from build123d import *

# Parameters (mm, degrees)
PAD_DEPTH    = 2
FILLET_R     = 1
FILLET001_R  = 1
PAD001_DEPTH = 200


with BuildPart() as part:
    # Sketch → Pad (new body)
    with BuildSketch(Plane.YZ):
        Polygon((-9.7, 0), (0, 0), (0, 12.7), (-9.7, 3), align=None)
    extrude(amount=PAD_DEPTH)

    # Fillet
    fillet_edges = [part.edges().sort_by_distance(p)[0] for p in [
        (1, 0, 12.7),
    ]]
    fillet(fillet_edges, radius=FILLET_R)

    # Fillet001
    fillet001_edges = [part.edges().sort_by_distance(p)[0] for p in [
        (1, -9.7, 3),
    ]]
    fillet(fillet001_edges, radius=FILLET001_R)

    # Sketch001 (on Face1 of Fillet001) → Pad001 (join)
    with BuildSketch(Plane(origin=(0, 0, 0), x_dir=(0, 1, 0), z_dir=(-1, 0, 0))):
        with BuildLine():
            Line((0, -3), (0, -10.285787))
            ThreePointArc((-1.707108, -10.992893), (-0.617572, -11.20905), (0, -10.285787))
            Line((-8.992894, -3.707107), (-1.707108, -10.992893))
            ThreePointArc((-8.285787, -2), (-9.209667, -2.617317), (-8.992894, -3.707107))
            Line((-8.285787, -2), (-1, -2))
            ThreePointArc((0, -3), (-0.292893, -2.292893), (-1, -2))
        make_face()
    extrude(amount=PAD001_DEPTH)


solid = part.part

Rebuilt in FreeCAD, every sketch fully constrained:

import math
import FreeCAD as App
import Part
import Sketcher
Q = App.Units.Quantity


def edges_at(feature, points):
    """Names of the edges that pass closest to the given points."""
    edges = feature.Shape.Edges
    near = lambda p: min(range(len(edges)), key=lambda i: edges[i].distToShape(Part.Vertex(*p))[0])
    return sorted({f"Edge{near(p) + 1}" for p in points})


def add_polygon(sketch, points):
    """Adds a closed chain of lines whose ends are joined by coincident constraints."""
    first, n = sketch.GeometryCount, len(points)
    for a, b in zip(points, points[1:] + points[:1]):
        sketch.addGeometry(Part.LineSegment(App.Vector(*a, 0), App.Vector(*b, 0)), False)
    for i in range(n):
        sketch.addConstraint(Sketcher.Constraint("Coincident", first + i, 2, first + (i + 1) % n, 1))

doc = App.newDocument("Part")
params = doc.addObject("Spreadsheet::Sheet", "Params")
for row, (alias, value) in enumerate([
    ("sketch1_height", "3 mm"),
    ("sketch1_width", "9.7 mm"),
    ("pad1_length", "2 mm"),
    ("fillet_radius", "1 mm"),
    ("fillet2_radius", "1 mm"),
    ("sketch2_radius", "0.999999 mm"),
    ("pad2_length", "200 mm"),
], start=1):
    params.set(f"A{row}", alias)
    params.set(f"B{row}", "=" + value)
    params.setAlias(f"B{row}", alias)

body = doc.addObject("PartDesign::Body", "Body")

# Sketch on YZ plane
sketch1 = body.newObject("Sketcher::SketchObject", "Sketch")
sketch1.AttachmentSupport = (doc.getObject("YZ_Plane"), [""])
sketch1.MapMode = "FlatFace"
add_polygon(sketch1, [(-9.7, 0), (0, 0), (0, 12.7), (-9.7, 3)])  # lines 0-3
sketch1.addConstraint(Sketcher.Constraint("Horizontal", 0))
sketch1.addConstraint(Sketcher.Constraint("Vertical", 1))
sketch1.addConstraint(Sketcher.Constraint("Vertical", 3))
sketch1.addConstraint(Sketcher.Constraint("Coincident", 0, 2, -1, 1))
sketch1.addConstraint(Sketcher.Constraint("DistanceY", 3, 2, 3, 1, Q("3 mm")))
sketch1.addConstraint(Sketcher.Constraint("Angle", 2, Q("-135 deg")))
sketch1.addConstraint(Sketcher.Constraint("DistanceX", 0, 1, 0, 2, Q("9.7 mm")))
sketch1.setExpression("Constraints[8]", "Params.sketch1_height")
sketch1.setExpression("Constraints[10]", "Params.sketch1_width")
pad1 = body.newObject("PartDesign::Pad", "Pad")
pad1.Profile = sketch1
pad1.setExpression("Length", "Params.pad1_length")
doc.recompute()

fillet = body.newObject("PartDesign::Fillet", "Fillet")
fillet.Base = (pad1, edges_at(pad1, [(1, 0, 12.7)]))
fillet.setExpression("Radius", "Params.fillet_radius")
doc.recompute()

fillet2 = body.newObject("PartDesign::Fillet", "Fillet001")
fillet2.Base = (fillet, edges_at(fillet, [(1, -9.7, 3)]))
fillet2.setExpression("Radius", "Params.fillet2_radius")

# Sketch on YZ plane
sketch2 = body.newObject("Sketcher::SketchObject", "Sketch001")
sketch2.AttachmentSupport = (doc.getObject("YZ_Plane"), [""])
sketch2.MapMode = "FlatFace"
sketch2.addGeometry(Part.LineSegment(App.Vector(0, 10.285787, 0), App.Vector(0, 3, 0)), False)
sketch2.addGeometry(Part.ArcOfCircle(Part.Circle(App.Vector(-0.999999, 2.999999, 0), App.Vector(0, 0, 1), 0.999999), math.radians(-90.000043), math.radians(0.000043)), False)
sketch2.addGeometry(Part.LineSegment(App.Vector(-1, 2, 0), App.Vector(-8.285787, 2, 0)), False)
sketch2.addGeometry(Part.ArcOfCircle(Part.Circle(App.Vector(-8.285787, 3, 0), App.Vector(0, 0, 1), 1), math.radians(134.999994), math.radians(270.000013)), False)
sketch2.addGeometry(Part.LineSegment(App.Vector(-8.992894, 3.707107, 0), App.Vector(-1.707108, 10.992893, 0)), False)
sketch2.addGeometry(Part.ArcOfCircle(Part.Circle(App.Vector(-1.000414, 10.284787, 0), App.Vector(0, 0, 1), 1.000415), math.radians(0.057253), math.radians(134.94282)), False)
sketch2.addConstraint(Sketcher.Constraint("Tangent", 0, 2, 1, 2))
sketch2.addConstraint(Sketcher.Constraint("Tangent", 1, 1, 2, 1))
sketch2.addConstraint(Sketcher.Constraint("Tangent", 2, 2, 3, 2))
sketch2.addConstraint(Sketcher.Constraint("Tangent", 3, 1, 4, 1))
sketch2.addConstraint(Sketcher.Constraint("Coincident", 4, 2, 5, 2))
sketch2.addConstraint(Sketcher.Constraint("Coincident", 5, 1, 0, 1))
sketch2.addConstraint(Sketcher.Constraint("Vertical", 0))
sketch2.addConstraint(Sketcher.Constraint("Horizontal", 2))
sketch2.addConstraint(Sketcher.Constraint("Equal", 1, 3))
sketch2.addConstraint(Sketcher.Constraint("PointOnObject", 0, 2, -2))
sketch2.addConstraint(Sketcher.Constraint("Equal", 2, 0))
sketch2.addConstraint(Sketcher.Constraint("Radius", 1, Q("0.999999 mm")))
sketch2.addConstraint(Sketcher.Constraint("Angle", 4, Q("45 deg")))
sketch2.addConstraint(Sketcher.Constraint("DistanceY", -1, 1, 1, 3, Q("2.999999 mm")))
sketch2.addConstraint(Sketcher.Constraint("Radius", 5, Q("1.000415 mm")))
sketch2.addConstraint(Sketcher.Constraint("DistanceX", 2, 2, 2, 1, Q("7.285787 mm")))
sketch2.addConstraint(Sketcher.Constraint("DistanceX", 4, 2, -1, 1, Q("1.707108 mm")))
sketch2.setExpression("Constraints[11]", "Params.sketch2_radius")
pad2 = body.newObject("PartDesign::Pad", "Pad001")
pad2.Profile = sketch2
pad2.setExpression("Length", "Params.pad2_length")
pad2.Reversed = True

doc.recompute()
